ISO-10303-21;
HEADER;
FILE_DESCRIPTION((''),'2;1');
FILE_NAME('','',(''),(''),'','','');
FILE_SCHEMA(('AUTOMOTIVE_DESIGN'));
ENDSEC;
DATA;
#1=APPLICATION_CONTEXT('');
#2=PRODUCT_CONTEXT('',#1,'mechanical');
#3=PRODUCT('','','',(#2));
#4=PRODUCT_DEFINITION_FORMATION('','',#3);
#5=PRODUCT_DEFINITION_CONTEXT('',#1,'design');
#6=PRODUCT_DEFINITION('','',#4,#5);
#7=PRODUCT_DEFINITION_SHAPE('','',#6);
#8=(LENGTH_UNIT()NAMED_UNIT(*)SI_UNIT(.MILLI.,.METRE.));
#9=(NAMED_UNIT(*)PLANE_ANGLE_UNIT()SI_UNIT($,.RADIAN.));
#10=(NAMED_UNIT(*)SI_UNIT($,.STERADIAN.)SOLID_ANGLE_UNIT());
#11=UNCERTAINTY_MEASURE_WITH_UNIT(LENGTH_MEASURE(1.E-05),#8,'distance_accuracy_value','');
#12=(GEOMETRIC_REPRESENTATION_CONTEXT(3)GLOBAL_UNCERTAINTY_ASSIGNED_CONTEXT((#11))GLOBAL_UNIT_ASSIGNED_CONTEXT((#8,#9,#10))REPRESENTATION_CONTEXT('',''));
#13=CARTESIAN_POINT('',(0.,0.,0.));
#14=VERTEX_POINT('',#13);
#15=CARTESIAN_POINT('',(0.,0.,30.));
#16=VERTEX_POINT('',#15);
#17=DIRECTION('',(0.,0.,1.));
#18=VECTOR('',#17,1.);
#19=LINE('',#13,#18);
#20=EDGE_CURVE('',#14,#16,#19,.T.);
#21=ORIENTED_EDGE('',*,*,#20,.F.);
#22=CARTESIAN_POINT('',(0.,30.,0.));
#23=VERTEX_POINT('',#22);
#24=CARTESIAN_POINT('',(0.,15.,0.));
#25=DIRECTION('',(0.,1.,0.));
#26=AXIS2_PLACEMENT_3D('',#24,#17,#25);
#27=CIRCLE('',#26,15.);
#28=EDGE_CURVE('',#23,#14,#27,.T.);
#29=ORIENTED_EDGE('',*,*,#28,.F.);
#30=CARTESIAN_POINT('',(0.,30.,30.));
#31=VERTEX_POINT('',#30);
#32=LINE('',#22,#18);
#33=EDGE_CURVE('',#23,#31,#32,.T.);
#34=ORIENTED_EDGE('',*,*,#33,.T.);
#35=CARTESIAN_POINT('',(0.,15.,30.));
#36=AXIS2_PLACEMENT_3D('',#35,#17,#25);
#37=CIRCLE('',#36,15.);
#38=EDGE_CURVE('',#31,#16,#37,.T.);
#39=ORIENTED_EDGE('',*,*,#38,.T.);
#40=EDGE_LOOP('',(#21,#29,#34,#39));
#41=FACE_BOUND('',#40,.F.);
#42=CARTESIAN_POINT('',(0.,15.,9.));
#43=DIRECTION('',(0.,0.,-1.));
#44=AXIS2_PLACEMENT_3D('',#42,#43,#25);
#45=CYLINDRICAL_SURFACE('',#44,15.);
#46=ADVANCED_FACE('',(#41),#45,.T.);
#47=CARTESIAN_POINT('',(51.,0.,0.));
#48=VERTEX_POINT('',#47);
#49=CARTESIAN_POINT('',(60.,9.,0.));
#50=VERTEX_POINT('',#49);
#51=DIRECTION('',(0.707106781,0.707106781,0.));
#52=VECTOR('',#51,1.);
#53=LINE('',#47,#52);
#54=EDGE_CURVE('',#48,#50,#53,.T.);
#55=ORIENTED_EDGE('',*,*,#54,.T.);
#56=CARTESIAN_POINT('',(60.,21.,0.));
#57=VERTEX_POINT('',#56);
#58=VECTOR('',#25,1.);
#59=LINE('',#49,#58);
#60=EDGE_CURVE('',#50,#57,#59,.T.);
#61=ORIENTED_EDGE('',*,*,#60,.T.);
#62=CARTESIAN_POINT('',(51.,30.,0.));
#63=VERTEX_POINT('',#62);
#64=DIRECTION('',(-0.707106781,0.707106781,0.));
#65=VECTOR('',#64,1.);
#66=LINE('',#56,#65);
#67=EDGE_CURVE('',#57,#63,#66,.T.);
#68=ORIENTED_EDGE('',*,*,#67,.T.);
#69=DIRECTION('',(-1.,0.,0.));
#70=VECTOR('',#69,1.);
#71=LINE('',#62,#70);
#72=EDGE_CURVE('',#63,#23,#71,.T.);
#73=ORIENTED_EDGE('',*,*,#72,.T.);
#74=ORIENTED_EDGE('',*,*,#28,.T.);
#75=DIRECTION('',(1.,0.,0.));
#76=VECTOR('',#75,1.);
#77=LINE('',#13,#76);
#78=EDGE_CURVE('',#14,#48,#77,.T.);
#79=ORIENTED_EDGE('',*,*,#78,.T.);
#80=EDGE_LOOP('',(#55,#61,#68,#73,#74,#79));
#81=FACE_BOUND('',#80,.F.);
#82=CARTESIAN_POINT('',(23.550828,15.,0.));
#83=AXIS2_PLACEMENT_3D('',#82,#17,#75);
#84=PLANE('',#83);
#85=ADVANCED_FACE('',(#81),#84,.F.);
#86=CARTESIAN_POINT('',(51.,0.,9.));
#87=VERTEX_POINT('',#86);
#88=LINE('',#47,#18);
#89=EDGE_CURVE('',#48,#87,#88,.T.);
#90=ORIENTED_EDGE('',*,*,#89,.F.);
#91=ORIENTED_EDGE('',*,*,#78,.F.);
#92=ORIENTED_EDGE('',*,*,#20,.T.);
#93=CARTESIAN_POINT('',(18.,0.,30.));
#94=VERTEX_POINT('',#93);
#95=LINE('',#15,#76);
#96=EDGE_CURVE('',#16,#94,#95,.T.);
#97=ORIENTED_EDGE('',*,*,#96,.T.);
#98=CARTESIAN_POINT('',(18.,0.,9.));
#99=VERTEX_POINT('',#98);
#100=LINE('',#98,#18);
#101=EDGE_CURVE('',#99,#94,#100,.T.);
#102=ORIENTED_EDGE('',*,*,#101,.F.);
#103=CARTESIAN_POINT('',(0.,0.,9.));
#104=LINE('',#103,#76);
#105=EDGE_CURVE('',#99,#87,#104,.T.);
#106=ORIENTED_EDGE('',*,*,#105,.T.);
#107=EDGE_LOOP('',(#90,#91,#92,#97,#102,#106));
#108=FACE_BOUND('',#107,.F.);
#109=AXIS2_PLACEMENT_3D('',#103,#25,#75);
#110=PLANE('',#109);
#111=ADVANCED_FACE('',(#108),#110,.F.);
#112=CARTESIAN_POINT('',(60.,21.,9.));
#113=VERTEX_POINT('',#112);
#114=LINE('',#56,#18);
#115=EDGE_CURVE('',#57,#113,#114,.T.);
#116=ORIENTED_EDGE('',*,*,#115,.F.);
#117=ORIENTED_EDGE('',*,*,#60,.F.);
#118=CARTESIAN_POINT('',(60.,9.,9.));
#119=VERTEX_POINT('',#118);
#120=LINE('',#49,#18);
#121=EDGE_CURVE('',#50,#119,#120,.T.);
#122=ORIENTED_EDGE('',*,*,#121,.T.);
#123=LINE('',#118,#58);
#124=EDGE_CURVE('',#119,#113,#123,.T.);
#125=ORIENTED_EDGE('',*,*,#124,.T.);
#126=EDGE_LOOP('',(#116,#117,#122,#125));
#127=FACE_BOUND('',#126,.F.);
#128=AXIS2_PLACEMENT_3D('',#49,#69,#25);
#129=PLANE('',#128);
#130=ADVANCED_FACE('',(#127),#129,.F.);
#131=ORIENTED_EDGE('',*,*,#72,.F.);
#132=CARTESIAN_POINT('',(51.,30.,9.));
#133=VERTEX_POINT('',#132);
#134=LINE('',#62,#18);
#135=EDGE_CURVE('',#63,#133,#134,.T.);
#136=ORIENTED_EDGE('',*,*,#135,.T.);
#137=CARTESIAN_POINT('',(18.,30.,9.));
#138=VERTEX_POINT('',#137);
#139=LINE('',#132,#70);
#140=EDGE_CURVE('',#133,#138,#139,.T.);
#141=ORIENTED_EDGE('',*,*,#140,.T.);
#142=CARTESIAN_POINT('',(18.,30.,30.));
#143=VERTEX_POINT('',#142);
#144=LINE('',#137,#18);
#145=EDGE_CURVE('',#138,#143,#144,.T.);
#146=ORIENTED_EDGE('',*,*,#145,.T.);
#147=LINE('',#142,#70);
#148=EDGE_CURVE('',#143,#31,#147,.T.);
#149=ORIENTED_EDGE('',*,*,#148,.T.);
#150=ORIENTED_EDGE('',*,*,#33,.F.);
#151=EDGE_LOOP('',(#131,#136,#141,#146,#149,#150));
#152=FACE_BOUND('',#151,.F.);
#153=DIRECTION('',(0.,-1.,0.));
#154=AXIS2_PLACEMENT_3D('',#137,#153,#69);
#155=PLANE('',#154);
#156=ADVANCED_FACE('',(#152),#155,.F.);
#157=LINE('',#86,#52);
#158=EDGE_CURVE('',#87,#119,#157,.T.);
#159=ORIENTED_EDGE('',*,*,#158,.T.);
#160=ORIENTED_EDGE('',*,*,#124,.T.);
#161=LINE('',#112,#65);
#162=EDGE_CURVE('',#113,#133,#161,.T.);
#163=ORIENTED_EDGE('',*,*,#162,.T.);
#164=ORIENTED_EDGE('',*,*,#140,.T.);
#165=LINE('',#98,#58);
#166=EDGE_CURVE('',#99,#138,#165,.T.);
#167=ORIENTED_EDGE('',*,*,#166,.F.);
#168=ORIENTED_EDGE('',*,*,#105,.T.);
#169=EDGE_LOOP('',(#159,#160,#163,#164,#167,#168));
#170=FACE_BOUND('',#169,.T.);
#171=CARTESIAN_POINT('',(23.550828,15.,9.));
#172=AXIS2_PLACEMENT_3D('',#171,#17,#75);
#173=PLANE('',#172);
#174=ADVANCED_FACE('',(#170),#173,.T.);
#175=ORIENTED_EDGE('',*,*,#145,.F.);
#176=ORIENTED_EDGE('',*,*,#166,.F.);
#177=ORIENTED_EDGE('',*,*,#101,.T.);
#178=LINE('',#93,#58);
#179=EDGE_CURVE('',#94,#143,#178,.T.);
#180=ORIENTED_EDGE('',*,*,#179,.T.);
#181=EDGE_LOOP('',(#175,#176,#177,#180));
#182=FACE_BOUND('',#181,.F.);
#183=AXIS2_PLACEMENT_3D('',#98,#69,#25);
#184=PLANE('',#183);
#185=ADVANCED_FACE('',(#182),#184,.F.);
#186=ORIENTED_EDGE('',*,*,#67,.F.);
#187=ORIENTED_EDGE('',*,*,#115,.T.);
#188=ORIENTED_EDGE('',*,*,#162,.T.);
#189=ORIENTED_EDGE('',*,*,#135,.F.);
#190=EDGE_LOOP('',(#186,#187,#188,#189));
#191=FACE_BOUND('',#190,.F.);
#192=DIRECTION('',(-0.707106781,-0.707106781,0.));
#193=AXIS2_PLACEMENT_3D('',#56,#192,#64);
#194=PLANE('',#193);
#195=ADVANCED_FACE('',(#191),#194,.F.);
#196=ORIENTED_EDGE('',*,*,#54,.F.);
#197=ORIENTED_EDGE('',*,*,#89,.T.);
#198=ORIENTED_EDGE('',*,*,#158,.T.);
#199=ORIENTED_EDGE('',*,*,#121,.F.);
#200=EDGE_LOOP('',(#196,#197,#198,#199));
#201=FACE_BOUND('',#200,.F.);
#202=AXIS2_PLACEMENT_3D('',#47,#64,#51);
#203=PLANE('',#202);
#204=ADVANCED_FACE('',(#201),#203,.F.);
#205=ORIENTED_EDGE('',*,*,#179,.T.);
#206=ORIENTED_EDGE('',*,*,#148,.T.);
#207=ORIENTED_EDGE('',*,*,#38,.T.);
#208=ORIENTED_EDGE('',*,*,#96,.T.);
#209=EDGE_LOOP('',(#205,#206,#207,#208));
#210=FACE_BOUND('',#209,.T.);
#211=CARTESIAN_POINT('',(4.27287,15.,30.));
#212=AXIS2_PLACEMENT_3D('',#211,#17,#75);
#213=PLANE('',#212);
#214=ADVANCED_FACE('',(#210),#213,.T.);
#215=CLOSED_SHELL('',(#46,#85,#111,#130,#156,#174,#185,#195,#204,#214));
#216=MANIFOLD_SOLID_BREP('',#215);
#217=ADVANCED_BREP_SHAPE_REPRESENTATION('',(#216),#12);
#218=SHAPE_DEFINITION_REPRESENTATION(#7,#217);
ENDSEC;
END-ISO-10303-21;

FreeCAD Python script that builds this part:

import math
import FreeCAD as App
import Part
import Sketcher
from FreeCAD import Vector

doc = App.newDocument("Part")
body = doc.addObject("PartDesign::Body", "Body")

# Sketch on XY plane
sketch1 = doc.addObject("Sketcher::SketchObject", "Sketch")
body.addObject(sketch1)
sketch1.AttachmentSupport = (doc.XY_Plane, [""])
sketch1.MapMode = "FlatFace"
sketch1.addGeometry([
    Part.LineSegment(Vector(51, 30, 0), Vector(0, 30, 0)),  # 0
    Part.ArcOfCircle(Part.Circle(Vector(0, 15, 0), Vector(0, 0, 1), 15), math.radians(90), math.radians(270)),  # 1
    Part.LineSegment(Vector(0, 0, 0), Vector(51, 0, 0)),  # 2
    Part.LineSegment(Vector(51, 0, 0), Vector(60, 9, 0)),  # 3
    Part.LineSegment(Vector(60, 9, 0), Vector(60, 21, 0)),  # 4
    Part.LineSegment(Vector(60, 21, 0), Vector(51, 30, 0)),  # 5
], False)
sketch1.addConstraint([
    Sketcher.Constraint("Tangent", 0, 2, 1, 1),
    Sketcher.Constraint("Tangent", 1, 2, 2, 1),
    Sketcher.Constraint("Coincident", 2, 2, 3, 1),
    Sketcher.Constraint("Coincident", 3, 2, 4, 1),
    Sketcher.Constraint("Coincident", 4, 2, 5, 1),
    Sketcher.Constraint("Coincident", 5, 2, 0, 1),
    Sketcher.Constraint("Horizontal", 0),
    Sketcher.Constraint("Horizontal", 2),
    Sketcher.Constraint("Vertical", 4),
    Sketcher.Constraint("Coincident", 1, 2, -1, 1),
    Sketcher.Constraint("Perpendicular", 3, 5),
    Sketcher.Constraint("Vertical", 2, 2, 5, 2),
    Sketcher.Constraint("Equal", 3, 5),
    Sketcher.Constraint("Radius", 1, 15.0),
    Sketcher.Constraint("DistanceX", 0, 2, 0, 1, 51.0),
    Sketcher.Constraint("DistanceY", 4, 1, 4, 2, 12.0),
])
pad1 = doc.addObject("PartDesign::Pad", "Pad")
body.addObject(pad1)
pad1.Profile = sketch1
pad1.Length = 9

# Sketch on XY plane
sketch2 = doc.addObject("Sketcher::SketchObject", "Sketch001")
body.addObject(sketch2)
sketch2.AttachmentSupport = (doc.XY_Plane, [""])
sketch2.MapMode = "FlatFace"
sketch2.AttachmentOffset = App.Placement(Vector(0, 0, 9), App.Rotation())
sketch2.addGeometry([
    Part.LineSegment(Vector(18, 30, 0), Vector(0, 30, 0)),
    Part.ArcOfCircle(Part.Circle(Vector(0, 15, 0), Vector(0, 0, 1), 15), math.radians(90), math.radians(270)),
    Part.LineSegment(Vector(0, 0, 0), Vector(18, 0, 0)),
    Part.LineSegment(Vector(18, 0, 0), Vector(18, 30, 0)),
], False)
sketch2.addConstraint([
    Sketcher.Constraint("Tangent", 0, 2, 1, 1),
    Sketcher.Constraint("Tangent", 1, 2, 2, 1),
    Sketcher.Constraint("Coincident", 2, 2, 3, 1),
    Sketcher.Constraint("Coincident", 3, 2, 0, 1),
    Sketcher.Constraint("Horizontal", 0),
    Sketcher.Constraint("Horizontal", 2),
    Sketcher.Constraint("Vertical", 3),
    Sketcher.Constraint("Coincident", 1, 2, -1, 1),
    Sketcher.Constraint("Radius", 1, 15.0),
    Sketcher.Constraint("DistanceX", 0, 2, 0, 1, 18.0),
])
pad2 = doc.addObject("PartDesign::Pad", "Pad001")
body.addObject(pad2)
pad2.Profile = sketch2
pad2.Length = 21

doc.recompute()
